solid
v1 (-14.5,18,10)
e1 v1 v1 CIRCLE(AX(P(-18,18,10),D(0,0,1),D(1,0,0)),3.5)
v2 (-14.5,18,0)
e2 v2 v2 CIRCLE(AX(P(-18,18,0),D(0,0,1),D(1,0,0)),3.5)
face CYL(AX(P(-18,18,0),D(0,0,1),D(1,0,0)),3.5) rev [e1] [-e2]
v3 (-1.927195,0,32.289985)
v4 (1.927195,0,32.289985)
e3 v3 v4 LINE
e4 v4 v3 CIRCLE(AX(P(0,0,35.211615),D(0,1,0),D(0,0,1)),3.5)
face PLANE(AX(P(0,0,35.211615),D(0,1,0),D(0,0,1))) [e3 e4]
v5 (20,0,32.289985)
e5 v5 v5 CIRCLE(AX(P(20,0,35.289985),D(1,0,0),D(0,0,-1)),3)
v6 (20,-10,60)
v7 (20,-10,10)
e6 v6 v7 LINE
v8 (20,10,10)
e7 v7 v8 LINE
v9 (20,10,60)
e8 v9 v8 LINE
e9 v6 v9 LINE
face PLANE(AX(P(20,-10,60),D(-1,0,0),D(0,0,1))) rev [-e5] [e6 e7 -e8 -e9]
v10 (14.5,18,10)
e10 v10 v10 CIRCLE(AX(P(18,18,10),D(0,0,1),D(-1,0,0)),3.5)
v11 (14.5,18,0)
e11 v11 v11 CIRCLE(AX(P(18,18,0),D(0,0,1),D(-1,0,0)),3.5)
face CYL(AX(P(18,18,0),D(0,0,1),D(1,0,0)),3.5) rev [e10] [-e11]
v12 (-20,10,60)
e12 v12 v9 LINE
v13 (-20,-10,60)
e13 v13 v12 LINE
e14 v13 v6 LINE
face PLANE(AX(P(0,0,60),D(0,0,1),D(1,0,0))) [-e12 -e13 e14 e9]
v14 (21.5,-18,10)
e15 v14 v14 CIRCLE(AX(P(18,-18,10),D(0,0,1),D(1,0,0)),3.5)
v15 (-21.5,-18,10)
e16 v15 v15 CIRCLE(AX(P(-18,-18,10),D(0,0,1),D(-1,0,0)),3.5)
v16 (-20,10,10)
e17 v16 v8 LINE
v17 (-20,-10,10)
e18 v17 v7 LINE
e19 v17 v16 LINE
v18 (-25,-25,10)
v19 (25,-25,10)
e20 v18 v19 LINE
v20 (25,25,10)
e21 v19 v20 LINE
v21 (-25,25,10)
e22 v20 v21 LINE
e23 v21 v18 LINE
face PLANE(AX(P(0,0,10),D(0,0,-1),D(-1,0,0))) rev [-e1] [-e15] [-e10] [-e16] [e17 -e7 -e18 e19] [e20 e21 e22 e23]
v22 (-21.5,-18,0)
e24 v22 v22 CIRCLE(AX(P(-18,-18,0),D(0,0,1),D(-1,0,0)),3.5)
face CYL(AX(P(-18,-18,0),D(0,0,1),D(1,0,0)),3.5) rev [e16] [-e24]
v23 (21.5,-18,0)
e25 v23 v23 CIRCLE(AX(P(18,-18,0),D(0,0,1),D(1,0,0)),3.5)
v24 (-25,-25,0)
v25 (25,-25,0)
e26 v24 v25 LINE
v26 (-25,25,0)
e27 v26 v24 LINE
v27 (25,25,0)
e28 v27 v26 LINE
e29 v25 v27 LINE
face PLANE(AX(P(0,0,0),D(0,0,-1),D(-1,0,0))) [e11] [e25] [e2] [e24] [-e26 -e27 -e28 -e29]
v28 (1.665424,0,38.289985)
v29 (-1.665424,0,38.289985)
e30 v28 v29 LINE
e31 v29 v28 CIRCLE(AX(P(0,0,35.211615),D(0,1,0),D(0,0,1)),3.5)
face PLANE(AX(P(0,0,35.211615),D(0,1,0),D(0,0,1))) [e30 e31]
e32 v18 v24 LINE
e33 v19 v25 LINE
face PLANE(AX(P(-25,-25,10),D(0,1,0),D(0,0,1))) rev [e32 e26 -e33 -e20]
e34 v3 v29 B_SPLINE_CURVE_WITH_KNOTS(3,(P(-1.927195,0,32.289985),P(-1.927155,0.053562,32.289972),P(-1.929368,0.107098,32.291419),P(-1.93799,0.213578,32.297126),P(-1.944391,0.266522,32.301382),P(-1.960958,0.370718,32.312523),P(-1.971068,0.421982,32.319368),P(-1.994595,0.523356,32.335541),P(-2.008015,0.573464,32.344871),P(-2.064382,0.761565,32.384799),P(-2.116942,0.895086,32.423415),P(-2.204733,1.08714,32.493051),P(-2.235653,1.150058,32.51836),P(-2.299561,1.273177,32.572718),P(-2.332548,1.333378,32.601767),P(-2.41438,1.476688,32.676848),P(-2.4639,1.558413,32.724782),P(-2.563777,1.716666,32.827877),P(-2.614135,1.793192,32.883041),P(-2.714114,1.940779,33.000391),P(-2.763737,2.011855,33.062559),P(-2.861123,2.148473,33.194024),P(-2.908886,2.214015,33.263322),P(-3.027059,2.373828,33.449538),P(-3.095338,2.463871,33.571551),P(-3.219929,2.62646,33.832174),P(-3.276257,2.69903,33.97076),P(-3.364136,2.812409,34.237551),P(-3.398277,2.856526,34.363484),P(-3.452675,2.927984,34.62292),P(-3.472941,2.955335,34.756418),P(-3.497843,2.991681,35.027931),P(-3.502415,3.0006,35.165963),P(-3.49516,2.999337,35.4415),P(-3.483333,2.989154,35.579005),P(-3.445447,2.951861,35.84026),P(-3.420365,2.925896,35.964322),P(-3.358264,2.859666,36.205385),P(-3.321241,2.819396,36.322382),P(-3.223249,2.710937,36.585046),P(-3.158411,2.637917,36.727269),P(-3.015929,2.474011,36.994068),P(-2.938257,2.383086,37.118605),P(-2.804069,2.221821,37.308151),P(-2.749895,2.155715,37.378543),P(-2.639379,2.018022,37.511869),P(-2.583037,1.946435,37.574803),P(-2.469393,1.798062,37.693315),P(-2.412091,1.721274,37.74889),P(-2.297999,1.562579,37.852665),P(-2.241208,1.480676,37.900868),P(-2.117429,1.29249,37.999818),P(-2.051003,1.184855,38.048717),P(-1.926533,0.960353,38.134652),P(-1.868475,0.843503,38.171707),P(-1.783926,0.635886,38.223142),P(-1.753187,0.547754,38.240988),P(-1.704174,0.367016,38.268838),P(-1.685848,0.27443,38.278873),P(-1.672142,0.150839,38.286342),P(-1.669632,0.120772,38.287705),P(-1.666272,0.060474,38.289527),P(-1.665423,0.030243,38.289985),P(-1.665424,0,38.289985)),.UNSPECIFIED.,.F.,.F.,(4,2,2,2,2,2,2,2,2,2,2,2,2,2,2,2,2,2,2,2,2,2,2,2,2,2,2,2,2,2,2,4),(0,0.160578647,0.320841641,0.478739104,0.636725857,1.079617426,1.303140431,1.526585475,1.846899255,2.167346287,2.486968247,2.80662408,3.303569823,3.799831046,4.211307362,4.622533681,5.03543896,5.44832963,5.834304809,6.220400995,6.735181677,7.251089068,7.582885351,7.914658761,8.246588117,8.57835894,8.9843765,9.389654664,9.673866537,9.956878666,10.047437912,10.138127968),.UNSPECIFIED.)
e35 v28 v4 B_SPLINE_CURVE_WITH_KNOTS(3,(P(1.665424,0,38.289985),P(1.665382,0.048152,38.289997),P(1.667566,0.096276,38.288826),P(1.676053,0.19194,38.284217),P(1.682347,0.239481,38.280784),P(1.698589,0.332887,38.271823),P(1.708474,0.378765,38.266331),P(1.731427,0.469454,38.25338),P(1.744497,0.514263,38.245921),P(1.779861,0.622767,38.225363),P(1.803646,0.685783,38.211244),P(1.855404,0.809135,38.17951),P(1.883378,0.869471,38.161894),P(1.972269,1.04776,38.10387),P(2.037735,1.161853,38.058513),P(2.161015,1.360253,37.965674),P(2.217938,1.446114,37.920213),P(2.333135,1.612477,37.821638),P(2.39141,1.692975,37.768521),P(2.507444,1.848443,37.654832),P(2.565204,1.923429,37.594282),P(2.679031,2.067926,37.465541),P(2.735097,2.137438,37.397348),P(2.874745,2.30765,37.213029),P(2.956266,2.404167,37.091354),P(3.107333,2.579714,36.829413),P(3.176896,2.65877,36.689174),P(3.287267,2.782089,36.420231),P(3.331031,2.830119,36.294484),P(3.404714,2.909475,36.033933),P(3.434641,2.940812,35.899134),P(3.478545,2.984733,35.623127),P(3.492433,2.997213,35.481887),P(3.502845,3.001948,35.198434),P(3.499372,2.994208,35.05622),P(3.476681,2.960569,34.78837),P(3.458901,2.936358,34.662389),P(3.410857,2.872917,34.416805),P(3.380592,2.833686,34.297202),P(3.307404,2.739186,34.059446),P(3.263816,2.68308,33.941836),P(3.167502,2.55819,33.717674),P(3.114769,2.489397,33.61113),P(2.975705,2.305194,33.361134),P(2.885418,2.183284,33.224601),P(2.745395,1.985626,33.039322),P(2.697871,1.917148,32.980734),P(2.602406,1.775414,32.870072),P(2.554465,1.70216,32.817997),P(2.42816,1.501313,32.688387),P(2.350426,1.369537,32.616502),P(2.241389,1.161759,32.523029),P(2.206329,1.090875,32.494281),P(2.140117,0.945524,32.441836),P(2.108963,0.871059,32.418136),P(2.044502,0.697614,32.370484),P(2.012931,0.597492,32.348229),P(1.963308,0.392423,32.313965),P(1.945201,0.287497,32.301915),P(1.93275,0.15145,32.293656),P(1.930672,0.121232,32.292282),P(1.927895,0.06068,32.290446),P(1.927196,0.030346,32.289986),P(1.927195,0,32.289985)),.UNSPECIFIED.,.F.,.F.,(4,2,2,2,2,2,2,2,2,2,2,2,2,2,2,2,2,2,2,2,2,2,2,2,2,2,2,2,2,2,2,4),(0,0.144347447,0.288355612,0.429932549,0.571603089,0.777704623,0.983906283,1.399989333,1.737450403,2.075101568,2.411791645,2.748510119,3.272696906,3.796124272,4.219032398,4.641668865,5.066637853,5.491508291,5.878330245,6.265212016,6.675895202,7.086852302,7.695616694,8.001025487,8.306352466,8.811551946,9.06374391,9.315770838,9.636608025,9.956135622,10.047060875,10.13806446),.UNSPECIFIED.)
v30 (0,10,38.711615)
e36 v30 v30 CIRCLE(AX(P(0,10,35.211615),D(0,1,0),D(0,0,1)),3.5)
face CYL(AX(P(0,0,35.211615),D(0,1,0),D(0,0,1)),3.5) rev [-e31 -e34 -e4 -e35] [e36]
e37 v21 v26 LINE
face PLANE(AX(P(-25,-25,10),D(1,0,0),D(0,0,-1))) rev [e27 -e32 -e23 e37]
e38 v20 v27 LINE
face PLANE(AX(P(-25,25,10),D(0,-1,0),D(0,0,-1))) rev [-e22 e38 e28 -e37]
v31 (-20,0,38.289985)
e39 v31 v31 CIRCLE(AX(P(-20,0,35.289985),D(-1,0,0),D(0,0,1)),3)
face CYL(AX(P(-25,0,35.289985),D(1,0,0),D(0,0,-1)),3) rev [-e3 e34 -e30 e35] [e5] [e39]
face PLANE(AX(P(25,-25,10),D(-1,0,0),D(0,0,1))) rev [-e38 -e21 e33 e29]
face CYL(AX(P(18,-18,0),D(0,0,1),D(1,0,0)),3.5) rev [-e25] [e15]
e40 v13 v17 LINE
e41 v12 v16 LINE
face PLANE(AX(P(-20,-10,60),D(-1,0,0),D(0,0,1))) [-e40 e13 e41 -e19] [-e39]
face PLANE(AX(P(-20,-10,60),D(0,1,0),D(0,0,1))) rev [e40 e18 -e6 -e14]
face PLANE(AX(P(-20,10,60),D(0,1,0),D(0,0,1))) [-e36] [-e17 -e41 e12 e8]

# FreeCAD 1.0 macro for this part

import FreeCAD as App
import Part
import Sketcher
from FreeCAD import Vector


def add_polygon(sketch, points):
    """Adds a closed chain of lines whose ends are joined by coincident constraints."""
    first, n = sketch.GeometryCount, len(points)
    for a, b in zip(points, points[1:] + points[:1]):
        sketch.addGeometry(Part.LineSegment(App.Vector(*a, 0), App.Vector(*b, 0)), False)
    for i in range(n):
        sketch.addConstraint(Sketcher.Constraint("Coincident", first + i, 2, first + (i + 1) % n, 1))

doc = App.newDocument("Part")
params = doc.addObject("Spreadsheet::Sheet", "Params")
for row, (alias, value) in enumerate([
    ("sketch1_width", "50 mm"),
    ("pad1_length", "10 mm"),
    ("sketch2_width", "40 mm"),
    ("sketch2_height", "20 mm"),
    ("pad2_length", "50 mm"),
    ("sketch3_diameter", "7 mm"),
    ("pocket1_length", "10 mm"),
    ("sketch4_diameter", "6 mm"),
    ("sketch5_diameter", "7 mm"),
    ("pocket3_length", "10 mm"),
], start=1):
    params.set(f"A{row}", alias)
    params.set(f"B{row}", "=" + value)
    params.setAlias(f"B{row}", alias)

body = doc.addObject("PartDesign::Body", "Body")

# Sketch on XY plane
sketch1 = doc.addObject("Sketcher::SketchObject", "Sketch")
body.addObject(sketch1)
sketch1.AttachmentSupport = (doc.XY_Plane, [""])
sketch1.MapMode = "FlatFace"
add_polygon(sketch1, [(-25, 25), (-25, -25), (25, -25), (25, 25)])  # lines 0-3
sketch1.addConstraint(Sketcher.Constraint("Vertical", 0))
sketch1.addConstraint(Sketcher.Constraint("Horizontal", 1))
sketch1.addConstraint(Sketcher.Constraint("Vertical", 2))
sketch1.addConstraint(Sketcher.Constraint("Horizontal", 3))
sketch1.addConstraint(Sketcher.Constraint("Symmetric", 0, 2, 2, 2, -1, 1))
sketch1.addConstraint(Sketcher.Constraint("Equal", 3, 0))
sketch1.addConstraint(Sketcher.Constraint("DistanceX", 1, 1, 1, 2, 50.0))
sketch1.setExpression("Constraints[10]", "Params.sketch1_width")
pad1 = doc.addObject("PartDesign::Pad", "Pad")
body.addObject(pad1)
pad1.Profile = sketch1
pad1.setExpression("Length", "Params.pad1_length")

# Sketch on XY plane
sketch2 = doc.addObject("Sketcher::SketchObject", "Sketch001")
body.addObject(sketch2)
sketch2.AttachmentSupport = (doc.XY_Plane, [""])
sketch2.MapMode = "FlatFace"
sketch2.AttachmentOffset = App.Placement(Vector(0, 0, 10), App.Rotation())
add_polygon(sketch2, [(-20, 10), (-20, -10), (20, -10), (20, 10)])  # lines 0-3
sketch2.addConstraint(Sketcher.Constraint("Vertical", 0))
sketch2.addConstraint(Sketcher.Constraint("Horizontal", 1))
sketch2.addConstraint(Sketcher.Constraint("Vertical", 2))
sketch2.addConstraint(Sketcher.Constraint("Horizontal", 3))
sketch2.addConstraint(Sketcher.Constraint("Symmetric", 0, 2, 2, 2, -1, 1))
sketch2.addConstraint(Sketcher.Constraint("DistanceX", 1, 1, 1, 2, 40.0))
sketch2.addConstraint(Sketcher.Constraint("DistanceY", 0, 2, 0, 1, 20.0))
sketch2.setExpression("Constraints[9]", "Params.sketch2_width")
sketch2.setExpression("Constraints[10]", "Params.sketch2_height")
pad2 = doc.addObject("PartDesign::Pad", "Pad001")
body.addObject(pad2)
pad2.Profile = sketch2
pad2.setExpression("Length", "Params.pad2_length")

# Sketch on XY plane
sketch3 = doc.addObject("Sketcher::SketchObject", "Sketch002")
body.addObject(sketch3)
sketch3.AttachmentSupport = (doc.XY_Plane, [""])
sketch3.MapMode = "FlatFace"
sketch3.AttachmentOffset = App.Placement(Vector(0, 0, 10), App.Rotation())
sketch3.addGeometry(Part.Circle(Vector(-18, 18, 0), Vector(0, 0, 1), 3.5), False)
sketch3.addGeometry(Part.Circle(Vector(18, 18, 0), Vector(0, 0, 1), 3.5), False)
sketch3.addGeometry(Part.Circle(Vector(18, -18, 0), Vector(0, 0, 1), 3.5), False)
sketch3.addGeometry(Part.Circle(Vector(-18, -18, 0), Vector(0, 0, 1), 3.5), False)
sketch3.addConstraint(Sketcher.Constraint("Equal", 0, 1))
sketch3.addConstraint(Sketcher.Constraint("Equal", 1, 2))
sketch3.addConstraint(Sketcher.Constraint("Equal", 2, 3))
sketch3.addConstraint(Sketcher.Constraint("Symmetric", 0, 3, 2, 3, -1, 1))
sketch3.addConstraint(Sketcher.Constraint("Symmetric", 1, 3, 3, 3, -1, 1))
sketch3.addConstraint(Sketcher.Constraint("Symmetric", 0, 3, 1, 3, -2))
sketch3.addConstraint(Sketcher.Constraint("Diameter", 0, 7.0))
sketch3.addConstraint(Sketcher.Constraint("DistanceX", 0, 3, -1, 1, 18.0))
sketch3.addConstraint(Sketcher.Constraint("DistanceY", -1, 1, 0, 3, 18.0))
sketch3.setExpression("Constraints[6]", "Params.sketch3_diameter")
pocket1 = doc.addObject("PartDesign::Pocket", "Pocket")
body.addObject(pocket1)
pocket1.Profile = sketch3
pocket1.setExpression("Length", "Params.pocket1_length")

# Sketch on YZ plane
sketch4 = doc.addObject("Sketcher::SketchObject", "Sketch003")
body.addObject(sketch4)
sketch4.AttachmentSupport = (doc.YZ_Plane, [""])
sketch4.MapMode = "FlatFace"
sketch4.AttachmentOffset = App.Placement(Vector(0, 0, 20), App.Rotation())
sketch4.addGeometry(Part.Circle(Vector(0, 35.3, 0), Vector(0, 0, 1), 3), False)
sketch4.addConstraint(Sketcher.Constraint("PointOnObject", 0, 3, -2))
sketch4.addConstraint(Sketcher.Constraint("Diameter", 0, 6.0))
sketch4.addConstraint(Sketcher.Constraint("DistanceY", -1, 1, 0, 3, 35.289985))
sketch4.setExpression("Constraints[1]", "Params.sketch4_diameter")
pocket2 = doc.addObject("PartDesign::Pocket", "Pocket001")
body.addObject(pocket2)
pocket2.Profile = sketch4
pocket2.Type = "ThroughAll"

# Sketch on XZ plane
sketch5 = doc.addObject("Sketcher::SketchObject", "Sketch004")
body.addObject(sketch5)
sketch5.AttachmentSupport = (doc.XZ_Plane, [""])
sketch5.MapMode = "FlatFace"
sketch5.AttachmentOffset = App.Placement(Vector(0, 0, -10), App.Rotation())
sketch5.addGeometry(Part.Circle(Vector(0, 35.2, 0), Vector(0, 0, 1), 3.5), False)
sketch5.addConstraint(Sketcher.Constraint("PointOnObject", 0, 3, -2))
sketch5.addConstraint(Sketcher.Constraint("Diameter", 0, 7.0))
sketch5.addConstraint(Sketcher.Constraint("DistanceY", -1, 1, 0, 3, 35.211615))
sketch5.setExpression("Constraints[1]", "Params.sketch5_diameter")
pocket3 = doc.addObject("PartDesign::Pocket", "Pocket002")
body.addObject(pocket3)
pocket3.Profile = sketch5
pocket3.setExpression("Length", "Params.pocket3_length")
pocket3.Reversed = True

doc.recompute()
